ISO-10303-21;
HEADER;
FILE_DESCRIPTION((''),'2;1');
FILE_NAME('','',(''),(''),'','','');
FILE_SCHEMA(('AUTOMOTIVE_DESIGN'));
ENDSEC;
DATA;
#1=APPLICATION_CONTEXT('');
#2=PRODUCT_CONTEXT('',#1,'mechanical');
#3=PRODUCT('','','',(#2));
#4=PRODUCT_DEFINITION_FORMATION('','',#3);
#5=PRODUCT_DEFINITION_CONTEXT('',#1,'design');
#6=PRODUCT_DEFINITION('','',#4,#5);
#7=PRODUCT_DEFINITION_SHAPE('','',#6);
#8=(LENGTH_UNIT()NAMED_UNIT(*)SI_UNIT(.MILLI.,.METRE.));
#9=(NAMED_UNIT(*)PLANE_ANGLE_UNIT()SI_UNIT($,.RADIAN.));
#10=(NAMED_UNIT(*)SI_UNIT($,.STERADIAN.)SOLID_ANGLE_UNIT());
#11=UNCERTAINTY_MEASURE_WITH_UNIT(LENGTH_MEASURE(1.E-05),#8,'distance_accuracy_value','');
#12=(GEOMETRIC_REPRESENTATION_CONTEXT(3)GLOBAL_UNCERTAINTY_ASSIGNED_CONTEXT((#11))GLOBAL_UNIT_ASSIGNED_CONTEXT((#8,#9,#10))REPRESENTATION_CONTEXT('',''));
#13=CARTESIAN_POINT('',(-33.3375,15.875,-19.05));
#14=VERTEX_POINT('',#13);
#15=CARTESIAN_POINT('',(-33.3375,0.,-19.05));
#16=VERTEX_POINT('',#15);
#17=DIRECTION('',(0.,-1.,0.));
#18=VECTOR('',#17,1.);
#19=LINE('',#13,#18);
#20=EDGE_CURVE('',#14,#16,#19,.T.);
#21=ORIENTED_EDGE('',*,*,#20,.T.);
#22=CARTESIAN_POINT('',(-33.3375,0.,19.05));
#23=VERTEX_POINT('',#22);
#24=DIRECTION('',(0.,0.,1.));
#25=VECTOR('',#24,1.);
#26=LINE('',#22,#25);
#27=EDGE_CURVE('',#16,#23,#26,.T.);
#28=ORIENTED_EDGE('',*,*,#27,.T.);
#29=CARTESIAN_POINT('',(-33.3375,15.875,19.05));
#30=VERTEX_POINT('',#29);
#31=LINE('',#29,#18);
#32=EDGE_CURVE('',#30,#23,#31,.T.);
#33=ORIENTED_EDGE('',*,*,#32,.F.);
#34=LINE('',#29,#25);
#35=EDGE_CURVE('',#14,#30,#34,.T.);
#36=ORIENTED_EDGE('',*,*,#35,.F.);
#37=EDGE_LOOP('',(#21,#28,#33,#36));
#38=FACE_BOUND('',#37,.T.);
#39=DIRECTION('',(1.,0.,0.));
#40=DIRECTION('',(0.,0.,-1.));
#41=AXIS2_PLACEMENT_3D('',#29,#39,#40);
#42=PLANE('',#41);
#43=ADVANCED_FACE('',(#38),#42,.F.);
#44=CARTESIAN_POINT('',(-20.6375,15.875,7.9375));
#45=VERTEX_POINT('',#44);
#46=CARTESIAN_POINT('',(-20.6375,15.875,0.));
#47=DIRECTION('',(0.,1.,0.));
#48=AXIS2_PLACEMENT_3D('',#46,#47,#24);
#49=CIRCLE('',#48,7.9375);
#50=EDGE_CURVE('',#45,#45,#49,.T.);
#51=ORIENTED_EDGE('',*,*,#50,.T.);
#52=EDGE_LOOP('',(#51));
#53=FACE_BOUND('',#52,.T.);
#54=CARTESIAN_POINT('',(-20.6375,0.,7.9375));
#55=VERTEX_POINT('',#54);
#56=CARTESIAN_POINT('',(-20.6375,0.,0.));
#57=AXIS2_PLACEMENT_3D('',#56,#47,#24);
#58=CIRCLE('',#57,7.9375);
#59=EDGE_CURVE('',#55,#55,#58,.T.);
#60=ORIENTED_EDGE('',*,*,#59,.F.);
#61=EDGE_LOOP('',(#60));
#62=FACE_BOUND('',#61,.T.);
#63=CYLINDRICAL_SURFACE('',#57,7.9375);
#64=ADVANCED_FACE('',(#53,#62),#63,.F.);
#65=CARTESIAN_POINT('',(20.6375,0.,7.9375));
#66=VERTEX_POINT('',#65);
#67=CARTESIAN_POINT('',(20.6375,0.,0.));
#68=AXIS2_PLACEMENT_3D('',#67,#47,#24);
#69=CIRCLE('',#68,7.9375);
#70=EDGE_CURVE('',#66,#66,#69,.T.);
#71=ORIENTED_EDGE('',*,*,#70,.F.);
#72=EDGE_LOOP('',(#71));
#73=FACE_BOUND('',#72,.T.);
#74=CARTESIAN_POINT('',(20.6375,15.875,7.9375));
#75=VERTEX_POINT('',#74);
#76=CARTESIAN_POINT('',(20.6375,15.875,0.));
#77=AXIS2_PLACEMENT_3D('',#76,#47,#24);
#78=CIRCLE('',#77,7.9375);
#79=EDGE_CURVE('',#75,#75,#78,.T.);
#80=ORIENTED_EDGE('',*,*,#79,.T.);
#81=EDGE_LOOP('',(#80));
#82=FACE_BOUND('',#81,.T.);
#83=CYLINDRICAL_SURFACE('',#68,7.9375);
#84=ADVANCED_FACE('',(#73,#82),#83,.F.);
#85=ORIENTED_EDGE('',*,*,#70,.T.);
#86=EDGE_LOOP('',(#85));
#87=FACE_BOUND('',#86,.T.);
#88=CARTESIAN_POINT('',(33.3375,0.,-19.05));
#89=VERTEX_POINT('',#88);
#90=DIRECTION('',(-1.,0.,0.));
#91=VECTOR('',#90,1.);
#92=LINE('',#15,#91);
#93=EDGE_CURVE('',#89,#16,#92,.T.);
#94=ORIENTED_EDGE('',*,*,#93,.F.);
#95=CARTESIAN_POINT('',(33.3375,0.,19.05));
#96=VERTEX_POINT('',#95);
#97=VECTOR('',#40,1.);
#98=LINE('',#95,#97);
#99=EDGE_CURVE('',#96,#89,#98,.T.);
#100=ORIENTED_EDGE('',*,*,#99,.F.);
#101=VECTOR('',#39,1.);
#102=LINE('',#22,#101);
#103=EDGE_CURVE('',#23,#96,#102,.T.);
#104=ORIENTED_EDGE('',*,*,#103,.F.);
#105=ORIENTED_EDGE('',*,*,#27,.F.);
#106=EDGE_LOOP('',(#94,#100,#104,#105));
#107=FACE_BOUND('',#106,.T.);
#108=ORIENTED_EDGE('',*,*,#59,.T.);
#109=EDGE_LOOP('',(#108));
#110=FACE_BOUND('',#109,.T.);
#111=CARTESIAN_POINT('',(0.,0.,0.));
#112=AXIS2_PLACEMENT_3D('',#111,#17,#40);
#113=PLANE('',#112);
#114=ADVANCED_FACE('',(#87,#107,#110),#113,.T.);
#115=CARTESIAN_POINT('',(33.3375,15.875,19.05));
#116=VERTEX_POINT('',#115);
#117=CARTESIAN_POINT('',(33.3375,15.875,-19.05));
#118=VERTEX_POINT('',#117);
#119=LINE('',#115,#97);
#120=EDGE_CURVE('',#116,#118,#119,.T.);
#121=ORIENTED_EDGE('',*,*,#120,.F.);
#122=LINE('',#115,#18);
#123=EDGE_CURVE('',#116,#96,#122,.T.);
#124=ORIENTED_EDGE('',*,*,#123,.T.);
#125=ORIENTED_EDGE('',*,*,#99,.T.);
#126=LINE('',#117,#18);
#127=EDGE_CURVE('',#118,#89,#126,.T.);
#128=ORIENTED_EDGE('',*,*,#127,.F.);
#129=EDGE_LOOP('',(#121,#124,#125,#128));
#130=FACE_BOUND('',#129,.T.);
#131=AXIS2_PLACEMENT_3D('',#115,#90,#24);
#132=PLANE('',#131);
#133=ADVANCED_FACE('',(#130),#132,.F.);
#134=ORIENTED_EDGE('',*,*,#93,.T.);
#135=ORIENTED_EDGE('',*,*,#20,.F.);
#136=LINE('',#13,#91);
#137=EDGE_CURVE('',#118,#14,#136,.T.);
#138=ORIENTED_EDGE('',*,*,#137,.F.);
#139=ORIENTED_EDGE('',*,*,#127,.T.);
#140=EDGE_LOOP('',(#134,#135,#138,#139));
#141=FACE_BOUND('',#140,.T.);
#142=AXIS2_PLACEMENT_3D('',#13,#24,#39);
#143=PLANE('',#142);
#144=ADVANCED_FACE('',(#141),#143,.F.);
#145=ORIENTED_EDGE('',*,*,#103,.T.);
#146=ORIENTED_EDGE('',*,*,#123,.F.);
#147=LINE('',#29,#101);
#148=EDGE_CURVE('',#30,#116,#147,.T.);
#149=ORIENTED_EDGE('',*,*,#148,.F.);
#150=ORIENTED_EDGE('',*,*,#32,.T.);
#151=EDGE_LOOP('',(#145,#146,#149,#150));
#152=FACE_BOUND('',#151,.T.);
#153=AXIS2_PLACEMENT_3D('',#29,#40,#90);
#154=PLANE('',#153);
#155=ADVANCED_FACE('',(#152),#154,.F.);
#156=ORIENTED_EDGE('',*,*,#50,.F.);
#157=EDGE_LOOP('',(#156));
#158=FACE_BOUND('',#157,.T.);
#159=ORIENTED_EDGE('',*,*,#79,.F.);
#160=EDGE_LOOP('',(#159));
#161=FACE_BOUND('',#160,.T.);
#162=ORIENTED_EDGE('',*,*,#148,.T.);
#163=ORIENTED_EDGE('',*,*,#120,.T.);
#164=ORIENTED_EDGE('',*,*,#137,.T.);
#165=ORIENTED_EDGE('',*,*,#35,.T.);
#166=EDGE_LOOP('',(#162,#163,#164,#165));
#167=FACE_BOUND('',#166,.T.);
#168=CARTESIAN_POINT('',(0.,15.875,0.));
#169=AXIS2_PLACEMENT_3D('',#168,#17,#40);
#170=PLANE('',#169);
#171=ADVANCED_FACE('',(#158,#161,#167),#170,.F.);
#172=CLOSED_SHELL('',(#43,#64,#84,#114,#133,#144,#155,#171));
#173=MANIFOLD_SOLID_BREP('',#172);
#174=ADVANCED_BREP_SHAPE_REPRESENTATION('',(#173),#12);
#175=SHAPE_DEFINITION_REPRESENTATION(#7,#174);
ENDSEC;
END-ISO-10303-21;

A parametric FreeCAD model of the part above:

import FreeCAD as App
import Part
import Sketcher

V = App.Vector
Q = App.Units.Quantity

doc = App.newDocument("Part")
body = doc.addObject("PartDesign::Body", "Body")

sketch1 = doc.addObject("Sketcher::SketchObject", "Sketch")
body.addObject(sketch1)
sketch1.AttachmentSupport = (doc.XZ_Plane, [""])
sketch1.MapMode = "FlatFace"
sketch1.addGeometry([
    Part.LineSegment(V(-33, -19, 0), V(-33, 19, 0)),
    Part.LineSegment(V(-33, 19, 0), V(33, 19, 0)),
    Part.LineSegment(V(33, 19, 0), V(33, -19, 0)),
    Part.LineSegment(V(33, -19, 0), V(-33, -19, 0)),
], False)
sketch1.addConstraint([
    Sketcher.Constraint("Coincident", 0, 2, 1, 1),
    Sketcher.Constraint("Coincident", 1, 2, 2, 1),
    Sketcher.Constraint("Coincident", 2, 2, 3, 1),
    Sketcher.Constraint("Coincident", 3, 2, 0, 1),
    Sketcher.Constraint("Vertical", 0),
    Sketcher.Constraint("Horizontal", 1),
    Sketcher.Constraint("Vertical", 2),
    Sketcher.Constraint("Horizontal", 3),
    Sketcher.Constraint("Symmetric", 0, 2, 2, 2, -1, 1),
    Sketcher.Constraint("DistanceY", 0, 1, 0, 2, Q("1.5 in")),
    Sketcher.Constraint("DistanceX", 1, 1, 1, 2, Q("2.625 in")),
])
pad1 = doc.addObject("PartDesign::Pad", "Pad")
body.addObject(pad1)
pad1.Profile = sketch1
pad1.Length = Q("0.625 in")
pad1.Reversed = True

sketch2 = doc.addObject("Sketcher::SketchObject", "Sketch001")
body.addObject(sketch2)
sketch2.AttachmentSupport = (doc.XZ_Plane, [""])
sketch2.MapMode = "FlatFace"
sketch2.AttachmentOffset = App.Placement(V(0, 0, -0.625 * 25.4), App.Rotation())
sketch2.addGeometry([
    Part.Circle(V(-21, 0, 0), V(0, 0, 1), 8),
    Part.Circle(V(21, 0, 0), V(0, 0, 1), 8),
], False)
sketch2.addConstraint([
    Sketcher.Constraint("Equal", 0, 1),
    Sketcher.Constraint("Symmetric", 0, 3, 1, 3, -1, 1),
    Sketcher.Constraint("PointOnObject", 0, 3, -1),
    Sketcher.Constraint("Diameter", 0, Q("0.625 in")),
    Sketcher.Constraint("DistanceX", 0, 3, -1, 1, Q("0.8125 in")),
])
pocket1 = doc.addObject("PartDesign::Pocket", "Pocket")
body.addObject(pocket1)
pocket1.Profile = sketch2
pocket1.Type = "ThroughAll"
pocket1.Reversed = True

doc.recompute()
